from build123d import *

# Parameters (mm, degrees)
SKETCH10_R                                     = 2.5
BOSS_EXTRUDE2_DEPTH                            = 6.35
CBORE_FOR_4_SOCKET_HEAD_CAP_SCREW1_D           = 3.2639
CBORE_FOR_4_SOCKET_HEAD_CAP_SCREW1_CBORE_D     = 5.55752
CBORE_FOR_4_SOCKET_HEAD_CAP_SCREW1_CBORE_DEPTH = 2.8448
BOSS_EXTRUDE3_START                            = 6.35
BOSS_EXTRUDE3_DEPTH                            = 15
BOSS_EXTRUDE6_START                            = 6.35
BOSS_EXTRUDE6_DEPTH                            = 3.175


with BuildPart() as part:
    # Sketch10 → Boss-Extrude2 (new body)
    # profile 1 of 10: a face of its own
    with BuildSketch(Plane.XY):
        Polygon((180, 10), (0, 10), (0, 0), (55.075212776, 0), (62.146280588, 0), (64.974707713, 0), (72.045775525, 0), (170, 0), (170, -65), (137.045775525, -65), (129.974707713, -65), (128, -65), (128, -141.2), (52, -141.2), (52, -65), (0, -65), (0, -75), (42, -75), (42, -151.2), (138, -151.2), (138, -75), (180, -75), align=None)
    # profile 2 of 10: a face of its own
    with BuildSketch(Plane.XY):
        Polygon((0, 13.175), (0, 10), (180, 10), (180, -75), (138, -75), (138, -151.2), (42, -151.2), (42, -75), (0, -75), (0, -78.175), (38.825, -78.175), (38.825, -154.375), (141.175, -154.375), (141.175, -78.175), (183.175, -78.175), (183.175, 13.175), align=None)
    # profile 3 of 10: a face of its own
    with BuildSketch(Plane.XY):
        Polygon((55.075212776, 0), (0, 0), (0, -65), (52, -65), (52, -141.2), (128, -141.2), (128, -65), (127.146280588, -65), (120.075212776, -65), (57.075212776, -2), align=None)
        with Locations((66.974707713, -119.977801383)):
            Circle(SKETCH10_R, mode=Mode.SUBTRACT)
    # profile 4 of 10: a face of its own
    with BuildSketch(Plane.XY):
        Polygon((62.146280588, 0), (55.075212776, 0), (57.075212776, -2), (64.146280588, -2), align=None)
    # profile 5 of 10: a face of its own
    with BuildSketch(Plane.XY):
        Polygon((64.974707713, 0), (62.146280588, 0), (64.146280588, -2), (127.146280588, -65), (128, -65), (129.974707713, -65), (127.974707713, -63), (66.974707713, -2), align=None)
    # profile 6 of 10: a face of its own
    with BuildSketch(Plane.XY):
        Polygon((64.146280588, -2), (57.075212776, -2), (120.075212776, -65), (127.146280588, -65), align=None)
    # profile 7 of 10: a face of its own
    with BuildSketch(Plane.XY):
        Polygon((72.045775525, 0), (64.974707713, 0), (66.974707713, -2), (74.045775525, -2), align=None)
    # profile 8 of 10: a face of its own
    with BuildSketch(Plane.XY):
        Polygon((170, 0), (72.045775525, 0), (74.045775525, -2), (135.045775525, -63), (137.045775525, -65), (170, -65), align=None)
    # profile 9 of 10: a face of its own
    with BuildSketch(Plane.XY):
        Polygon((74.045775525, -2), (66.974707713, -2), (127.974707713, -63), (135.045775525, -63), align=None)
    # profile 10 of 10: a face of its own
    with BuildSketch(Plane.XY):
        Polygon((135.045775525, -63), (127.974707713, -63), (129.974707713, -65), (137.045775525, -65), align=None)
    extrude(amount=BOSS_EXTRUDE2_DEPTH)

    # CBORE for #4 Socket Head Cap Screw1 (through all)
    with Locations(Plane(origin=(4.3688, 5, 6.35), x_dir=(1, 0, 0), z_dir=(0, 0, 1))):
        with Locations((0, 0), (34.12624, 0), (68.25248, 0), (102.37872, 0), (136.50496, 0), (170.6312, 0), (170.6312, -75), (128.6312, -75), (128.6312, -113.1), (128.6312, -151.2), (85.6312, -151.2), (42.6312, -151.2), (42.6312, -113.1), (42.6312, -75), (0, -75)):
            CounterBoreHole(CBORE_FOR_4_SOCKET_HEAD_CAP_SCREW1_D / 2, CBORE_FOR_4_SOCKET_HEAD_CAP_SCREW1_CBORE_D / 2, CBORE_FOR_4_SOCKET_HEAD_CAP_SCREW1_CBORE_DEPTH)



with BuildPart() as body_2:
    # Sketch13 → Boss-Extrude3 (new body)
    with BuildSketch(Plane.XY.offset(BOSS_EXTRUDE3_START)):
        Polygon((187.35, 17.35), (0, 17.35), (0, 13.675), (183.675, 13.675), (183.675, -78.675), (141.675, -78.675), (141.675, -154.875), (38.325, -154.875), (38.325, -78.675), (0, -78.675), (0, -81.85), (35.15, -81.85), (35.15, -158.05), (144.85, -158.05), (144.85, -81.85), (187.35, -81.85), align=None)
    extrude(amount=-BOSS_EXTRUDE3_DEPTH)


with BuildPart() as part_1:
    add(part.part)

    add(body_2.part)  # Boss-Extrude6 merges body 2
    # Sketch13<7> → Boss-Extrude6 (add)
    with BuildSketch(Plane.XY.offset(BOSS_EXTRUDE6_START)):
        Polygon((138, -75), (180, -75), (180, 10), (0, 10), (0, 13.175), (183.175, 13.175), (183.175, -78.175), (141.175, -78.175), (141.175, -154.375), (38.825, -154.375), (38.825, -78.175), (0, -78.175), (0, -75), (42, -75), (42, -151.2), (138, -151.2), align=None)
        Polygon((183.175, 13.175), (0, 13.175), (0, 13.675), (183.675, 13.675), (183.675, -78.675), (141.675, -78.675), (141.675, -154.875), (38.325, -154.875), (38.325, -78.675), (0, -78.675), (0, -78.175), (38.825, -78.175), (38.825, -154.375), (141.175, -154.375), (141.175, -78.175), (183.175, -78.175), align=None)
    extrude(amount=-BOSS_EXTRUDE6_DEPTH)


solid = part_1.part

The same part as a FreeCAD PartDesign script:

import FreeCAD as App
import Part
import Sketcher

V = App.Vector

doc = App.newDocument("Part")
body = doc.addObject("PartDesign::Body", "Body")

# Sketch on XY plane
sketch1 = body.newObject("Sketcher::SketchObject", "Sketch")
sketch1.AttachmentSupport = (doc.getObject("XY_Plane"), [""])
sketch1.MapMode = "FlatFace"
sketch1.addGeometry([
    Part.LineSegment(V(0, -78.2, 0), V(38.8, -78.2, 0)),  # 0
    Part.LineSegment(V(38.8, -78.2, 0), V(38.8, -154.4, 0)),  # 1
    Part.LineSegment(V(38.8, -154.4, 0), V(141.2, -154.4, 0)),  # 2
    Part.LineSegment(V(141.2, -154.4, 0), V(141.2, -78.2, 0)),  # 3
    Part.LineSegment(V(141.2, -78.2, 0), V(183.2, -78.2, 0)),  # 4
    Part.LineSegment(V(183.2, -78.2, 0), V(183.2, 13.2, 0)),  # 5
    Part.LineSegment(V(183.2, 13.2, 0), V(0, 13.2, 0)),  # 6
    Part.LineSegment(V(0, 13.2, 0), V(0, -78.2, 0)),  # 7
    Part.Circle(V(67, -120, 0), V(0, 0, 1), 2.5),  # 8
], False)
sketch1.addConstraint([
    Sketcher.Constraint("Coincident", 0, 2, 1, 1),
    Sketcher.Constraint("Coincident", 1, 2, 2, 1),
    Sketcher.Constraint("Coincident", 2, 2, 3, 1),
    Sketcher.Constraint("Coincident", 3, 2, 4, 1),
    Sketcher.Constraint("Coincident", 4, 2, 5, 1),
    Sketcher.Constraint("Coincident", 5, 2, 6, 1),
    Sketcher.Constraint("Coincident", 6, 2, 7, 1),
    Sketcher.Constraint("Coincident", 7, 2, 0, 1),
    Sketcher.Constraint("Horizontal", 0),
    Sketcher.Constraint("Vertical", 1),
    Sketcher.Constraint("Horizontal", 2),
    Sketcher.Constraint("Vertical", 3),
    Sketcher.Constraint("Horizontal", 4),
    Sketcher.Constraint("Vertical", 5),
    Sketcher.Constraint("Horizontal", 6),
    Sketcher.Constraint("Vertical", 7),
    Sketcher.Constraint("PointOnObject", 6, 2, -2),
    Sketcher.Constraint("Horizontal", 0, 2, 3, 2),
    Sketcher.Constraint("Diameter", 8, 5.0),
    Sketcher.Constraint("DistanceX", 4, 1, 4, 2, 42.0),
    Sketcher.Constraint("DistanceY", 1, 2, 1, 1, 76.2),
    Sketcher.Constraint("DistanceX", 2, 1, 2, 2, 102.35),
    Sketcher.Constraint("DistanceY", 5, 1, 5, 2, 91.35),
    Sketcher.Constraint("DistanceX", 0, 1, 0, 2, 38.825),
    Sketcher.Constraint("DistanceY", 0, 2, -1, 1, 78.175),
    Sketcher.Constraint("DistanceY", 8, 3, -1, 1, 119.977801),
    Sketcher.Constraint("DistanceX", -1, 1, 8, 3, 66.974708),
])
pad1 = body.newObject("PartDesign::Pad", "Pad")
pad1.Profile = sketch1
pad1.Length = 6.35

# Sketch on XY plane
sketch2 = body.newObject("Sketcher::SketchObject", "Sketch001")
sketch2.AttachmentSupport = (doc.getObject("XY_Plane"), [""])
sketch2.MapMode = "FlatFace"
sketch2.AttachmentOffset = App.Placement(V(0, 0, 6.35), App.Rotation())
sketch2.addGeometry([
    Part.Circle(V(4.4, 5, 0), V(0, 0, 1), 1.6),  # 0
    Part.Circle(V(38.5, 5, 0), V(0, 0, 1), 1.6),  # 1
    Part.Circle(V(72.6, 5, 0), V(0, 0, 1), 1.6),  # 2
    Part.Circle(V(106.7, 5, 0), V(0, 0, 1), 1.6),  # 3
    Part.Circle(V(140.9, 5, 0), V(0, 0, 1), 1.6),  # 4
    Part.Circle(V(175, 5, 0), V(0, 0, 1), 1.6),  # 5
    Part.Circle(V(175, -70, 0), V(0, 0, 1), 1.6),  # 6
    Part.Circle(V(133, -70, 0), V(0, 0, 1), 1.6),  # 7
    Part.Circle(V(133, -108.1, 0), V(0, 0, 1), 1.6),  # 8
    Part.Circle(V(133, -146.2, 0), V(0, 0, 1), 1.6),  # 9
    Part.Circle(V(90, -146.2, 0), V(0, 0, 1), 1.6),  # 10
    Part.Circle(V(47, -146.2, 0), V(0, 0, 1), 1.6),  # 11
    Part.Circle(V(47, -108.1, 0), V(0, 0, 1), 1.6),  # 12
    Part.Circle(V(47, -70, 0), V(0, 0, 1), 1.6),  # 13
    Part.Circle(V(4.4, -70, 0), V(0, 0, 1), 1.6),  # 14
], False)
sketch2.addConstraint([
    Sketcher.Constraint("Equal", 0, 1),
    Sketcher.Constraint("Equal", 1, 2),
    Sketcher.Constraint("Equal", 2, 3),
    Sketcher.Constraint("Equal", 3, 4),
    Sketcher.Constraint("Equal", 4, 5),
    Sketcher.Constraint("Equal", 5, 6),
    Sketcher.Constraint("Equal", 6, 7),
    Sketcher.Constraint("Equal", 7, 8),
    Sketcher.Constraint("Equal", 8, 9),
    Sketcher.Constraint("Equal", 9, 10),
    Sketcher.Constraint("Equal", 10, 11),
    Sketcher.Constraint("Equal", 11, 12),
    Sketcher.Constraint("Equal", 12, 13),
    Sketcher.Constraint("Equal", 13, 14),
    Sketcher.Constraint("Horizontal", 0, 3, 1, 3),
    Sketcher.Constraint("Horizontal", 1, 3, 2, 3),
    Sketcher.Constraint("Horizontal", 2, 3, 3, 3),
    Sketcher.Constraint("Horizontal", 3, 3, 4, 3),
    Sketcher.Constraint("Horizontal", 4, 3, 5, 3),
    Sketcher.Constraint("Horizontal", 6, 3, 7, 3),
    Sketcher.Constraint("Horizontal", 9, 3, 10, 3),
    Sketcher.Constraint("Horizontal", 10, 3, 11, 3),
    Sketcher.Constraint("Horizontal", 8, 3, 12, 3),
    Sketcher.Constraint("Horizontal", 7, 3, 13, 3),
    Sketcher.Constraint("Horizontal", 13, 3, 14, 3),
    Sketcher.Constraint("Vertical", 5, 3, 6, 3),
    Sketcher.Constraint("Vertical", 7, 3, 8, 3),
    Sketcher.Constraint("Vertical", 8, 3, 9, 3),
    Sketcher.Constraint("Vertical", 11, 3, 12, 3),
    Sketcher.Constraint("Vertical", 12, 3, 13, 3),
    Sketcher.Constraint("Vertical", 0, 3, 14, 3),
    Sketcher.Constraint("DistanceY", -1, 1, 0, 3, 5.0),
    Sketcher.Constraint("DistanceX", -1, 1, 5, 3, 175.0),
    Sketcher.Constraint("DistanceY", 6, 3, -1, 1, 70.0),
    Sketcher.Constraint("DistanceX", -1, 1, 7, 3, 133.0),
    Sketcher.Constraint("DistanceX", -1, 1, 10, 3, 90.0),
    Sketcher.Constraint("DistanceX", -1, 1, 11, 3, 47.0),
    Sketcher.Constraint("Diameter", 0, 3.2639),
    Sketcher.Constraint("DistanceY", 8, 3, -1, 1, 108.1),
    Sketcher.Constraint("DistanceY", 9, 3, -1, 1, 146.2),
    Sketcher.Constraint("DistanceX", -1, 1, 0, 3, 4.3688),
    Sketcher.Constraint("DistanceX", -1, 1, 1, 3, 38.49504),
    Sketcher.Constraint("DistanceX", -1, 1, 2, 3, 72.62128),
    Sketcher.Constraint("DistanceX", -1, 1, 3, 3, 106.74752),
    Sketcher.Constraint("DistanceX", -1, 1, 4, 3, 140.87376),
])
doc.recompute()
hole = body.newObject("PartDesign::Hole", "Hole")
hole.Profile = sketch2
hole.ThreadType = "None"
hole.Diameter = 3.2639
hole.DepthType = "ThroughAll"
hole.HoleCutType = "Counterbore"
hole.HoleCutDiameter = 5.55752
hole.HoleCutDepth = 2.8448
body2 = doc.addObject("PartDesign::Body", "Body001")

# Sketch on XY plane
sketch3 = body2.newObject("Sketcher::SketchObject", "Sketch002")
sketch3.AttachmentSupport = (doc.getObject("XY_Plane001"), [""])
sketch3.MapMode = "FlatFace"
sketch3.AttachmentOffset = App.Placement(V(0, 0, 6.35), App.Rotation())
sketch3.addGeometry([
    Part.LineSegment(V(187.3, 17.4, 0), V(0, 17.4, 0)),  # 0
    Part.LineSegment(V(0, 17.4, 0), V(0, 13.7, 0)),  # 1
    Part.LineSegment(V(0, 13.7, 0), V(183.7, 13.7, 0)),  # 2
    Part.LineSegment(V(183.7, 13.7, 0), V(183.7, -78.7, 0)),  # 3
    Part.LineSegment(V(183.7, -78.7, 0), V(141.7, -78.7, 0)),  # 4
    Part.LineSegment(V(141.7, -78.7, 0), V(141.7, -154.9, 0)),  # 5
    Part.LineSegment(V(141.7, -154.9, 0), V(38.3, -154.9, 0)),  # 6
    Part.LineSegment(V(38.3, -154.9, 0), V(38.3, -78.7, 0)),  # 7
    Part.LineSegment(V(38.3, -78.7, 0), V(0, -78.7, 0)),  # 8
    Part.LineSegment(V(0, -78.7, 0), V(0, -81.8, 0)),  # 9
    Part.LineSegment(V(0, -81.8, 0), V(35.1, -81.8, 0)),  # 10
    Part.LineSegment(V(35.1, -81.8, 0), V(35.1, -158.1, 0)),  # 11
    Part.LineSegment(V(35.1, -158.1, 0), V(144.8, -158.1, 0)),  # 12
    Part.LineSegment(V(144.8, -158.1, 0), V(144.8, -81.8, 0)),  # 13
    Part.LineSegment(V(144.8, -81.8, 0), V(187.3, -81.8, 0)),  # 14
    Part.LineSegment(V(187.3, -81.8, 0), V(187.3, 17.4, 0)),  # 15
], False)
sketch3.addConstraint([
    Sketcher.Constraint("Coincident", 0, 2, 1, 1),
    Sketcher.Constraint("Coincident", 1, 2, 2, 1),
    Sketcher.Constraint("Coincident", 2, 2, 3, 1),
    Sketcher.Constraint("Coincident", 3, 2, 4, 1),
    Sketcher.Constraint("Coincident", 4, 2, 5, 1),
    Sketcher.Constraint("Coincident", 5, 2, 6, 1),
    Sketcher.Constraint("Coincident", 6, 2, 7, 1),
    Sketcher.Constraint("Coincident", 7, 2, 8, 1),
    Sketcher.Constraint("Coincident", 8, 2, 9, 1),
    Sketcher.Constraint("Coincident", 9, 2, 10, 1),
    Sketcher.Constraint("Coincident", 10, 2, 11, 1),
    Sketcher.Constraint("Coincident", 11, 2, 12, 1),
    Sketcher.Constraint("Coincident", 12, 2, 13, 1),
    Sketcher.Constraint("Coincident", 13, 2, 14, 1),
    Sketcher.Constraint("Coincident", 14, 2, 15, 1),
    Sketcher.Constraint("Coincident", 15, 2, 0, 1),
    Sketcher.Constraint("Horizontal", 0),
    Sketcher.Constraint("Vertical", 1),
    Sketcher.Constraint("Horizontal", 2),
    Sketcher.Constraint("Vertical", 3),
    Sketcher.Constraint("Horizontal", 4),
    Sketcher.Constraint("Vertical", 5),
    Sketcher.Constraint("Horizontal", 6),
    Sketcher.Constraint("Vertical", 7),
    Sketcher.Constraint("Horizontal", 8),
    Sketcher.Constraint("Vertical", 9),
    Sketcher.Constraint("Horizontal", 10),
    Sketcher.Constraint("Vertical", 11),
    Sketcher.Constraint("Horizontal", 12),
    Sketcher.Constraint("Vertical", 13),
    Sketcher.Constraint("Horizontal", 14),
    Sketcher.Constraint("Vertical", 15),
    Sketcher.Constraint("PointOnObject", 0, 2, -2),
    Sketcher.Constraint("PointOnObject", 8, 2, -2),
    Sketcher.Constraint("Horizontal", 4, 2, 7, 2),
    Sketcher.Constraint("Horizontal", 10, 2, 13, 2),
    Sketcher.Constraint("Equal", 7, 11),
    Sketcher.Constraint("DistanceX", 4, 2, 4, 1, 42.0),
    Sketcher.Constraint("DistanceX", 12, 1, 12, 2, 109.7),
    Sketcher.Constraint("DistanceX", 14, 1, 14, 2, 42.5),
    Sketcher.Constraint("DistanceY", 5, 2, 5, 1, 76.2),
    Sketcher.Constraint("DistanceY", 15, 1, 15, 2, 99.2),
    Sketcher.Constraint("DistanceX", 0, 2, 0, 1, 187.35),
    Sketcher.Constraint("DistanceX", 6, 2, 6, 1, 103.35),
    Sketcher.Constraint("DistanceY", 3, 2, 3, 1, 92.35),
    Sketcher.Constraint("DistanceX", 2, 1, 2, 2, 183.675),
    Sketcher.Constraint("DistanceY", 1, 2, 1, 1, 3.675),
    Sketcher.Constraint("DistanceY", -1, 1, 0, 2, 17.35),
])
pad2 = body2.newObject("PartDesign::Pad", "Pad001")
pad2.Profile = sketch3
pad2.Length = 15
pad2.Reversed = True
body.AllowCompound = True
doc.recompute()

boolean = body.newObject("PartDesign::Boolean", "Boolean")
boolean.Type = "Fuse"
boolean.addObjects([body2])

# Sketch on XY plane
sketch4 = body.newObject("Sketcher::SketchObject", "Sketch003")
sketch4.AttachmentSupport = (doc.getObject("XY_Plane"), [""])
sketch4.MapMode = "FlatFace"
sketch4.AttachmentOffset = App.Placement(V(0, 0, 6.35), App.Rotation())
sketch4.addGeometry([
    Part.LineSegment(V(180, -75, 0), V(138, -75, 0)),  # 0
    Part.LineSegment(V(138, -75, 0), V(138, -151.2, 0)),  # 1
    Part.LineSegment(V(138, -151.2, 0), V(42, -151.2, 0)),  # 2
    Part.LineSegment(V(42, -151.2, 0), V(42, -75, 0)),  # 3
    Part.LineSegment(V(42, -75, 0), V(0, -75, 0)),  # 4
    Part.LineSegment(V(0, -75, 0), V(0, -78.7, 0)),  # 5
    Part.LineSegment(V(0, -78.7, 0), V(38.3, -78.7, 0)),  # 6
    Part.LineSegment(V(38.3, -78.7, 0), V(38.3, -154.9, 0)),  # 7
    Part.LineSegment(V(38.3, -154.9, 0), V(141.7, -154.9, 0)),  # 8
    Part.LineSegment(V(141.7, -154.9, 0), V(141.7, -78.7, 0)),  # 9
    Part.LineSegment(V(141.7, -78.7, 0), V(183.7, -78.7, 0)),  # 10
    Part.LineSegment(V(183.7, -78.7, 0), V(183.7, 13.7, 0)),  # 11
    Part.LineSegment(V(183.7, 13.7, 0), V(0, 13.7, 0)),  # 12
    Part.LineSegment(V(0, 13.7, 0), V(0, 10, 0)),  # 13
    Part.LineSegment(V(0, 10, 0), V(180, 10, 0)),  # 14
    Part.LineSegment(V(180, 10, 0), V(180, -75, 0)),  # 15
], False)
sketch4.addConstraint([
    Sketcher.Constraint("Coincident", 0, 2, 1, 1),
    Sketcher.Constraint("Coincident", 1, 2, 2, 1),
    Sketcher.Constraint("Coincident", 2, 2, 3, 1),
    Sketcher.Constraint("Coincident", 3, 2, 4, 1),
    Sketcher.Constraint("Coincident", 4, 2, 5, 1),
    Sketcher.Constraint("Coincident", 5, 2, 6, 1),
    Sketcher.Constraint("Coincident", 6, 2, 7, 1),
    Sketcher.Constraint("Coincident", 7, 2, 8, 1),
    Sketcher.Constraint("Coincident", 8, 2, 9, 1),
    Sketcher.Constraint("Coincident", 9, 2, 10, 1),
    Sketcher.Constraint("Coincident", 10, 2, 11, 1),
    Sketcher.Constraint("Coincident", 11, 2, 12, 1),
    Sketcher.Constraint("Coincident", 12, 2, 13, 1),
    Sketcher.Constraint("Coincident", 13, 2, 14, 1),
    Sketcher.Constraint("Coincident", 14, 2, 15, 1),
    Sketcher.Constraint("Coincident", 15, 2, 0, 1),
    Sketcher.Constraint("Horizontal", 0),
    Sketcher.Constraint("Vertical", 1),
    Sketcher.Constraint("Horizontal", 2),
    Sketcher.Constraint("Vertical", 3),
    Sketcher.Constraint("Horizontal", 4),
    Sketcher.Constraint("Vertical", 5),
    Sketcher.Constraint("Horizontal", 6),
    Sketcher.Constraint("Vertical", 7),
    Sketcher.Constraint("Horizontal", 8),
    Sketcher.Constraint("Vertical", 9),
    Sketcher.Constraint("Horizontal", 10),
    Sketcher.Constraint("Vertical", 11),
    Sketcher.Constraint("Horizontal", 12),
    Sketcher.Constraint("Vertical", 13),
    Sketcher.Constraint("Horizontal", 14),
    Sketcher.Constraint("Vertical", 15),
    Sketcher.Constraint("PointOnObject", 4, 2, -2),
    Sketcher.Constraint("PointOnObject", 12, 2, -2),
    Sketcher.Constraint("Horizontal", 0, 2, 3, 2),
    Sketcher.Constraint("Horizontal", 6, 2, 9, 2),
    Sketcher.Constraint("Equal", 0, 4),
    Sketcher.Constraint("Equal", 4, 10),
    Sketcher.Constraint("Equal", 3, 7),
    Sketcher.Constraint("Equal", 5, 13),
    Sketcher.Constraint("DistanceX", 0, 2, 0, 1, 42.0),
    Sketcher.Constraint("DistanceX", 2, 2, 2, 1, 96.0),
    Sketcher.Constraint("DistanceY", 15, 2, 15, 1, 85.0),
    Sketcher.Constraint("DistanceY", 1, 2, 1, 1, 76.2),
    Sketcher.Constraint("DistanceY", 0, 2, -1, 1, 75.0),
    Sketcher.Constraint("DistanceX", 8, 1, 8, 2, 103.35),
    Sketcher.Constraint("DistanceY", 11, 1, 11, 2, 92.35),
    Sketcher.Constraint("DistanceX", 6, 1, 6, 2, 38.325),
])
pad3 = body.newObject("PartDesign::Pad", "Pad002")
pad3.Profile = sketch4
pad3.Length = 3.175
pad3.Reversed = True

doc.recompute()
